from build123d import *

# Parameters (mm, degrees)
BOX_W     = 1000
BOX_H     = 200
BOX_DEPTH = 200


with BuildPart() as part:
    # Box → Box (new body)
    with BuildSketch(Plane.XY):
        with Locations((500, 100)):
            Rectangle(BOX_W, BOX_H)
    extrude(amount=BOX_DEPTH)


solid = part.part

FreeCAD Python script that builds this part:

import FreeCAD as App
import Part
import Sketcher

V = App.Vector


def add_polygon(sketch, points):
    """Adds a closed chain of lines whose ends are joined by coincident constraints."""
    first, n = sketch.GeometryCount, len(points)
    for a, b in zip(points, points[1:] + points[:1]):
        sketch.addGeometry(Part.LineSegment(App.Vector(*a, 0), App.Vector(*b, 0)), False)
    for i in range(n):
        sketch.addConstraint(Sketcher.Constraint("Coincident", first + i, 2, first + (i + 1) % n, 1))

doc = App.newDocument("Part")
body = doc.addObject("PartDesign::Body", "Body")

# Sketch on XY plane
sketch1 = body.newObject("Sketcher::SketchObject", "Sketch")
sketch1.AttachmentSupport = (doc.getObject("XY_Plane"), [""])
sketch1.MapMode = "FlatFace"
add_polygon(sketch1, [(0, 200), (0, 0), (1000, 0), (1000, 200)])  # lines 0-3
sketch1.addConstraint([
    Sketcher.Constraint("Vertical", 0),
    Sketcher.Constraint("Horizontal", 1),
    Sketcher.Constraint("Vertical", 2),
    Sketcher.Constraint("Horizontal", 3),
    Sketcher.Constraint("Coincident", 0, 2, -1, 1),
    Sketcher.Constraint("DistanceX", 1, 1, 1, 2, 1000.0),
    Sketcher.Constraint("DistanceY", 0, 2, 0, 1, 200.0),
])
pad1 = body.newObject("PartDesign::Pad", "Pad")
pad1.Profile = sketch1
pad1.Length = 200

doc.recompute()
